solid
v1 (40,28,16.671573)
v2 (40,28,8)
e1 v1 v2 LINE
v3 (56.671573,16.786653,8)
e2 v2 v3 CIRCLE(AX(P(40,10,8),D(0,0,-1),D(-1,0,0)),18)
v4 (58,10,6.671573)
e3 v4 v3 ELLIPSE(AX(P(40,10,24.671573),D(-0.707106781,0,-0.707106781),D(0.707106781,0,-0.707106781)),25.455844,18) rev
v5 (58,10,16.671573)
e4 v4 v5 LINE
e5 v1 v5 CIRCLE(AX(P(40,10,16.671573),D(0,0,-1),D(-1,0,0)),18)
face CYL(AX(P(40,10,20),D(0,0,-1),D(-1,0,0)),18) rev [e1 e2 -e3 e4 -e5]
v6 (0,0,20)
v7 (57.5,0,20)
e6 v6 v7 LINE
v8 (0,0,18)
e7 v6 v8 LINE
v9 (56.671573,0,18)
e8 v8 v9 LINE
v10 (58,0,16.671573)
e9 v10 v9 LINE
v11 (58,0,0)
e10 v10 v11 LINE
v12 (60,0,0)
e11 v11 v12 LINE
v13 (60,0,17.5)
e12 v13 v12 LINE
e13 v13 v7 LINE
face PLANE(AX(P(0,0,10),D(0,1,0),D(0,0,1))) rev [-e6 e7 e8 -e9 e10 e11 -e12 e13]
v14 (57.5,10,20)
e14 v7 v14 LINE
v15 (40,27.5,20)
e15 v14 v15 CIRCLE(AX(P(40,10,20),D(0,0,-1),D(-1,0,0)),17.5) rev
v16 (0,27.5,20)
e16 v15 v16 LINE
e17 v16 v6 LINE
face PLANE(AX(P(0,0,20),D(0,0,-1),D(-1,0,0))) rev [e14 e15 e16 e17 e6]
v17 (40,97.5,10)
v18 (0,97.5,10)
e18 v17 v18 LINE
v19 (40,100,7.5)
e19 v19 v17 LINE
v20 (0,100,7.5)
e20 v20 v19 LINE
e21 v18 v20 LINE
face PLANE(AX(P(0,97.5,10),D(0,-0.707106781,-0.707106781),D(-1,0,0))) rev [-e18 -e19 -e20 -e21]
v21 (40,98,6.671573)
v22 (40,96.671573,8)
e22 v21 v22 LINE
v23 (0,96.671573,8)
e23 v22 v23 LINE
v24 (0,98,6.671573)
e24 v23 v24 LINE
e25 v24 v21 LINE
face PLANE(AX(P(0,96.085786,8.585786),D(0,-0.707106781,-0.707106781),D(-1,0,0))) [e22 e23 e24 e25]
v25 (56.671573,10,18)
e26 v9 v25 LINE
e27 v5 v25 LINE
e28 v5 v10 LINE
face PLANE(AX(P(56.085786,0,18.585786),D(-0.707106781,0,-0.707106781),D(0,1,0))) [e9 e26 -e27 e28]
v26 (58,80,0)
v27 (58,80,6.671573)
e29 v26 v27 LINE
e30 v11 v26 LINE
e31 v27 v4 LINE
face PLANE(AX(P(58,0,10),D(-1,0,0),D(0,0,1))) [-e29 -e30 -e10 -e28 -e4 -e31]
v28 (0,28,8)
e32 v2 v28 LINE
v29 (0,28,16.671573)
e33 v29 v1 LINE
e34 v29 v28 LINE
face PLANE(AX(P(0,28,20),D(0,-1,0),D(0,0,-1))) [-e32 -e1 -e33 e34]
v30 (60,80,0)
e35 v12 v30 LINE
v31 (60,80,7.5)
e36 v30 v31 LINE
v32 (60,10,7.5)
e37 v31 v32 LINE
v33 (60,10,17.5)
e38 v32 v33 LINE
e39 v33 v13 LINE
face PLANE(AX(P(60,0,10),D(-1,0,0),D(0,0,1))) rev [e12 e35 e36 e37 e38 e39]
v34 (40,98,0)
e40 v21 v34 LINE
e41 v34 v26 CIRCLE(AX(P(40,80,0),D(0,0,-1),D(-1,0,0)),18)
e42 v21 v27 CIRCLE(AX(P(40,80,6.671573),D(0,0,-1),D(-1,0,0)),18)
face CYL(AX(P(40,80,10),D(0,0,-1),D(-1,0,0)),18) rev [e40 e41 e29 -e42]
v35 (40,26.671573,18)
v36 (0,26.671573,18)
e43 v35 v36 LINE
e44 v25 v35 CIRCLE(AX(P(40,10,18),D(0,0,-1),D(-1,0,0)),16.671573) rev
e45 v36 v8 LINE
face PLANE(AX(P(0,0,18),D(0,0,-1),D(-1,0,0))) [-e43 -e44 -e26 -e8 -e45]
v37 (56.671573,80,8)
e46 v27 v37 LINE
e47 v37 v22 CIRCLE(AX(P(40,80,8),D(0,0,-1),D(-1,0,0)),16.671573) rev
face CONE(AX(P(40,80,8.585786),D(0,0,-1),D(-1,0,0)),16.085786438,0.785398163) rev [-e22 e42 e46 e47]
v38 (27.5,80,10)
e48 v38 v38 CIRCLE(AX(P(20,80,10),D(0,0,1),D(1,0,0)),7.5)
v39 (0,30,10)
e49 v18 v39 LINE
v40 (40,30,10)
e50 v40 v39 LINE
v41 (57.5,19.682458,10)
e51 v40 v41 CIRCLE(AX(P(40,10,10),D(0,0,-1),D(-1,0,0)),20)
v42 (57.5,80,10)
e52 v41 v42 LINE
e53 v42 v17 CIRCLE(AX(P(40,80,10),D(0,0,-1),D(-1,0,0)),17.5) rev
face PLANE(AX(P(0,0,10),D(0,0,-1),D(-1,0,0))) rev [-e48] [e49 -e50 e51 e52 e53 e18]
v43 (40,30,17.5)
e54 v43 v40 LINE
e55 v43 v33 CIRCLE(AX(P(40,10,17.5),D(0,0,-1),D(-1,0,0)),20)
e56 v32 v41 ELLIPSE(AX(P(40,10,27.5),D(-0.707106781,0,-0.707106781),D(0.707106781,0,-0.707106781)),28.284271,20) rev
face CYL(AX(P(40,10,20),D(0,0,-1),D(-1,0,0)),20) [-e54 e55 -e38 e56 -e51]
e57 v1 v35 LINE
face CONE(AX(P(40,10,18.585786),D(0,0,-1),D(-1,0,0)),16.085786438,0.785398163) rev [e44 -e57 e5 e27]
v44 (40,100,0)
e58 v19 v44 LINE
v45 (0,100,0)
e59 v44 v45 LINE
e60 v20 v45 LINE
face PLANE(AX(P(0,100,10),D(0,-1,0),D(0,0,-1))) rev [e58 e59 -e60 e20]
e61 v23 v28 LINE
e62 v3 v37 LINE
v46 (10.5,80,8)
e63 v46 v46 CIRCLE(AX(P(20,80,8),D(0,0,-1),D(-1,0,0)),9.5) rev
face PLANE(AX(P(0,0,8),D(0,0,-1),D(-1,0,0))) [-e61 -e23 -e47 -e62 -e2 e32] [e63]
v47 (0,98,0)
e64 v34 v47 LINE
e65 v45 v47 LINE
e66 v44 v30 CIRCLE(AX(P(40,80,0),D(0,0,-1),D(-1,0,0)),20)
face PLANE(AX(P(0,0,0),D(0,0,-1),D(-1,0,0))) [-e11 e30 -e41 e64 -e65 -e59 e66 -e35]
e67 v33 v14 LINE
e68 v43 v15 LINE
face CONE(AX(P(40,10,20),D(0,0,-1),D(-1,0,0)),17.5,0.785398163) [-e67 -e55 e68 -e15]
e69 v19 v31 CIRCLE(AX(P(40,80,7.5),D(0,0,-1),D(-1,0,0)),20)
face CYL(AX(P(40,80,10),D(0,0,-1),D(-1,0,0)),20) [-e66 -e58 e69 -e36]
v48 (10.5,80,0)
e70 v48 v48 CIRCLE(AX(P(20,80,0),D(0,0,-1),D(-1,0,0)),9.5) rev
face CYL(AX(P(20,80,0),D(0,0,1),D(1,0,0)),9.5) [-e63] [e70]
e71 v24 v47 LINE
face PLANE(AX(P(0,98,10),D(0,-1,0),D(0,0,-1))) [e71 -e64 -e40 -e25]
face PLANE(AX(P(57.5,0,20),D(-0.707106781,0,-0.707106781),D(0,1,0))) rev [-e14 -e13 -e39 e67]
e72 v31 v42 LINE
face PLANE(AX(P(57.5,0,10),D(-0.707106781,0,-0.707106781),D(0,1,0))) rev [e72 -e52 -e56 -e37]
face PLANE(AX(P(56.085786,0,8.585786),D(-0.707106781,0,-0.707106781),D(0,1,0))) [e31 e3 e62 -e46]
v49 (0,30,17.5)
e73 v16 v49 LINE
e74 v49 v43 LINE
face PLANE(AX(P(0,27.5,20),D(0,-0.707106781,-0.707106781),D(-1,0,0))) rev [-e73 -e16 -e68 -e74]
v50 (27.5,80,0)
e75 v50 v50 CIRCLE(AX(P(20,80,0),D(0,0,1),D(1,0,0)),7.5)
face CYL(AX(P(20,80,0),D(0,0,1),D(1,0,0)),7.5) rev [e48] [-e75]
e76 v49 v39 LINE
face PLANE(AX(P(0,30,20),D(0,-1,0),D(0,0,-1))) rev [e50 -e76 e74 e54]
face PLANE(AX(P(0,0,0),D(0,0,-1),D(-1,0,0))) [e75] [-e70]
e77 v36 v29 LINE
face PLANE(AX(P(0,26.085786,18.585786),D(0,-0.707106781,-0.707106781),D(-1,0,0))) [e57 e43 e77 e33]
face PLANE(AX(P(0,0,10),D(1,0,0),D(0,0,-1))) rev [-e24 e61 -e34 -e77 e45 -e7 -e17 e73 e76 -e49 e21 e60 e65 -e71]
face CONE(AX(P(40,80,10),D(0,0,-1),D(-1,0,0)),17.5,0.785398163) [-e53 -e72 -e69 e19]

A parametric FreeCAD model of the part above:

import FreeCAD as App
import Part
import Sketcher
from FreeCAD import Vector
Q = App.Units.Quantity


def edges_at(feature, points):
    """Names of the edges that pass closest to the given points."""
    edges = feature.Shape.Edges
    near = lambda p: min(range(len(edges)), key=lambda i: edges[i].distToShape(Part.Vertex(*p))[0])
    return sorted({f"Edge{near(p) + 1}" for p in points})


def faces_at(feature, points):
    """Names of the faces that lie closest to the given points."""
    faces = feature.Shape.Faces
    near = lambda p: min(range(len(faces)), key=lambda i: faces[i].distToShape(Part.Vertex(*p))[0])
    return sorted({f"Face{near(p) + 1}" for p in points})


def add_polygon(sketch, points):
    """Adds a closed chain of lines whose ends are joined by coincident constraints."""
    first, n = sketch.GeometryCount, len(points)
    for a, b in zip(points, points[1:] + points[:1]):
        sketch.addGeometry(Part.LineSegment(App.Vector(*a, 0), App.Vector(*b, 0)), False)
    for i in range(n):
        sketch.addConstraint(Sketcher.Constraint("Coincident", first + i, 2, first + (i + 1) % n, 1))

doc = App.newDocument("Part")
body = doc.addObject("PartDesign::Body", "Body")

sketch1 = body.newObject("Sketcher::SketchObject", "Sketch")
sketch1.AttachmentSupport = (doc.getObject("XY_Plane"), [""])
sketch1.MapMode = "FlatFace"
add_polygon(sketch1, [(0, 100), (0, 0), (60, 0), (60, 100)])
sketch1.addConstraint(Sketcher.Constraint("Vertical", 0))
sketch1.addConstraint(Sketcher.Constraint("Horizontal", 1))
sketch1.addConstraint(Sketcher.Constraint("Vertical", 2))
sketch1.addConstraint(Sketcher.Constraint("Horizontal", 3))
sketch1.addConstraint(Sketcher.Constraint("Coincident", 0, 2, -1, 1))
sketch1.addConstraint(Sketcher.Constraint("DistanceX", 1, 1, 1, 2, Q("60 mm")))
sketch1.addConstraint(Sketcher.Constraint("DistanceY", 0, 2, 0, 1, Q("100 mm")))
pad1 = body.newObject("PartDesign::Pad", "Pad")
pad1.Profile = sketch1
pad1.Length = 10

sketch2 = body.newObject("Sketcher::SketchObject", "Sketch001")
sketch2.AttachmentSupport = (doc.getObject("XY_Plane"), [""])
sketch2.MapMode = "FlatFace"
sketch2.AttachmentOffset = App.Placement(Vector(0, 0, 10), App.Rotation())
add_polygon(sketch2, [(0, 30), (0, 0), (60, 0), (60, 30)])
sketch2.addConstraint(Sketcher.Constraint("Vertical", 0))
sketch2.addConstraint(Sketcher.Constraint("Horizontal", 1))
sketch2.addConstraint(Sketcher.Constraint("Vertical", 2))
sketch2.addConstraint(Sketcher.Constraint("Horizontal", 3))
sketch2.addConstraint(Sketcher.Constraint("Coincident", 0, 2, -1, 1))
sketch2.addConstraint(Sketcher.Constraint("DistanceX", 1, 1, 1, 2, Q("60 mm")))
sketch2.addConstraint(Sketcher.Constraint("DistanceY", 0, 2, 0, 1, Q("30 mm")))
pad2 = body.newObject("PartDesign::Pad", "Pad001")
pad2.Profile = sketch2
pad2.Length = 10

sketch3 = body.newObject("Sketcher::SketchObject", "Sketch002")
sketch3.AttachmentSupport = (doc.getObject("XY_Plane"), [""])
sketch3.MapMode = "FlatFace"
sketch3.AttachmentOffset = App.Placement(Vector(0, 0, 10), App.Rotation())
sketch3.addGeometry(Part.Circle(Vector(20, 80, 0), Vector(0, 0, 1), 7.5), False)
sketch3.addConstraint(Sketcher.Constraint("Diameter", 0, Q("15 mm")))
sketch3.addConstraint(Sketcher.Constraint("DistanceX", -1, 1, 0, 3, Q("20 mm")))
sketch3.addConstraint(Sketcher.Constraint("DistanceY", -1, 1, 0, 3, Q("80 mm")))
pocket1 = body.newObject("PartDesign::Pocket", "Pocket")
pocket1.Profile = sketch3
pocket1.Type = "ThroughAll"
doc.recompute()

fillet = body.newObject("PartDesign::Fillet", "Fillet")
fillet.Base = (pocket1, edges_at(pocket1, [(60, 30, 15), (60, 100, 5)]))
fillet.Radius = 20
doc.recompute()

chamfer = body.newObject("PartDesign::Chamfer", "Chamfer")
chamfer.Base = (fillet, edges_at(fillet, [
    (60, 45, 10),
    (60, 5, 20),
    (20, 30, 20),
    (54.142, 24.142, 20),
    (20, 100, 10),
    (54.142, 94.142, 10),
]))
chamfer.Size = 2.5
doc.recompute()

thickness = body.newObject("PartDesign::Thickness", "Thickness")
thickness.Base = (chamfer, faces_at(chamfer, [(30, 50, 0), (30, 0, 10), (0, 50, 10)]))
thickness.Value = 2
thickness.Reversed = True
thickness.Join = "Intersection"

doc.recompute()
